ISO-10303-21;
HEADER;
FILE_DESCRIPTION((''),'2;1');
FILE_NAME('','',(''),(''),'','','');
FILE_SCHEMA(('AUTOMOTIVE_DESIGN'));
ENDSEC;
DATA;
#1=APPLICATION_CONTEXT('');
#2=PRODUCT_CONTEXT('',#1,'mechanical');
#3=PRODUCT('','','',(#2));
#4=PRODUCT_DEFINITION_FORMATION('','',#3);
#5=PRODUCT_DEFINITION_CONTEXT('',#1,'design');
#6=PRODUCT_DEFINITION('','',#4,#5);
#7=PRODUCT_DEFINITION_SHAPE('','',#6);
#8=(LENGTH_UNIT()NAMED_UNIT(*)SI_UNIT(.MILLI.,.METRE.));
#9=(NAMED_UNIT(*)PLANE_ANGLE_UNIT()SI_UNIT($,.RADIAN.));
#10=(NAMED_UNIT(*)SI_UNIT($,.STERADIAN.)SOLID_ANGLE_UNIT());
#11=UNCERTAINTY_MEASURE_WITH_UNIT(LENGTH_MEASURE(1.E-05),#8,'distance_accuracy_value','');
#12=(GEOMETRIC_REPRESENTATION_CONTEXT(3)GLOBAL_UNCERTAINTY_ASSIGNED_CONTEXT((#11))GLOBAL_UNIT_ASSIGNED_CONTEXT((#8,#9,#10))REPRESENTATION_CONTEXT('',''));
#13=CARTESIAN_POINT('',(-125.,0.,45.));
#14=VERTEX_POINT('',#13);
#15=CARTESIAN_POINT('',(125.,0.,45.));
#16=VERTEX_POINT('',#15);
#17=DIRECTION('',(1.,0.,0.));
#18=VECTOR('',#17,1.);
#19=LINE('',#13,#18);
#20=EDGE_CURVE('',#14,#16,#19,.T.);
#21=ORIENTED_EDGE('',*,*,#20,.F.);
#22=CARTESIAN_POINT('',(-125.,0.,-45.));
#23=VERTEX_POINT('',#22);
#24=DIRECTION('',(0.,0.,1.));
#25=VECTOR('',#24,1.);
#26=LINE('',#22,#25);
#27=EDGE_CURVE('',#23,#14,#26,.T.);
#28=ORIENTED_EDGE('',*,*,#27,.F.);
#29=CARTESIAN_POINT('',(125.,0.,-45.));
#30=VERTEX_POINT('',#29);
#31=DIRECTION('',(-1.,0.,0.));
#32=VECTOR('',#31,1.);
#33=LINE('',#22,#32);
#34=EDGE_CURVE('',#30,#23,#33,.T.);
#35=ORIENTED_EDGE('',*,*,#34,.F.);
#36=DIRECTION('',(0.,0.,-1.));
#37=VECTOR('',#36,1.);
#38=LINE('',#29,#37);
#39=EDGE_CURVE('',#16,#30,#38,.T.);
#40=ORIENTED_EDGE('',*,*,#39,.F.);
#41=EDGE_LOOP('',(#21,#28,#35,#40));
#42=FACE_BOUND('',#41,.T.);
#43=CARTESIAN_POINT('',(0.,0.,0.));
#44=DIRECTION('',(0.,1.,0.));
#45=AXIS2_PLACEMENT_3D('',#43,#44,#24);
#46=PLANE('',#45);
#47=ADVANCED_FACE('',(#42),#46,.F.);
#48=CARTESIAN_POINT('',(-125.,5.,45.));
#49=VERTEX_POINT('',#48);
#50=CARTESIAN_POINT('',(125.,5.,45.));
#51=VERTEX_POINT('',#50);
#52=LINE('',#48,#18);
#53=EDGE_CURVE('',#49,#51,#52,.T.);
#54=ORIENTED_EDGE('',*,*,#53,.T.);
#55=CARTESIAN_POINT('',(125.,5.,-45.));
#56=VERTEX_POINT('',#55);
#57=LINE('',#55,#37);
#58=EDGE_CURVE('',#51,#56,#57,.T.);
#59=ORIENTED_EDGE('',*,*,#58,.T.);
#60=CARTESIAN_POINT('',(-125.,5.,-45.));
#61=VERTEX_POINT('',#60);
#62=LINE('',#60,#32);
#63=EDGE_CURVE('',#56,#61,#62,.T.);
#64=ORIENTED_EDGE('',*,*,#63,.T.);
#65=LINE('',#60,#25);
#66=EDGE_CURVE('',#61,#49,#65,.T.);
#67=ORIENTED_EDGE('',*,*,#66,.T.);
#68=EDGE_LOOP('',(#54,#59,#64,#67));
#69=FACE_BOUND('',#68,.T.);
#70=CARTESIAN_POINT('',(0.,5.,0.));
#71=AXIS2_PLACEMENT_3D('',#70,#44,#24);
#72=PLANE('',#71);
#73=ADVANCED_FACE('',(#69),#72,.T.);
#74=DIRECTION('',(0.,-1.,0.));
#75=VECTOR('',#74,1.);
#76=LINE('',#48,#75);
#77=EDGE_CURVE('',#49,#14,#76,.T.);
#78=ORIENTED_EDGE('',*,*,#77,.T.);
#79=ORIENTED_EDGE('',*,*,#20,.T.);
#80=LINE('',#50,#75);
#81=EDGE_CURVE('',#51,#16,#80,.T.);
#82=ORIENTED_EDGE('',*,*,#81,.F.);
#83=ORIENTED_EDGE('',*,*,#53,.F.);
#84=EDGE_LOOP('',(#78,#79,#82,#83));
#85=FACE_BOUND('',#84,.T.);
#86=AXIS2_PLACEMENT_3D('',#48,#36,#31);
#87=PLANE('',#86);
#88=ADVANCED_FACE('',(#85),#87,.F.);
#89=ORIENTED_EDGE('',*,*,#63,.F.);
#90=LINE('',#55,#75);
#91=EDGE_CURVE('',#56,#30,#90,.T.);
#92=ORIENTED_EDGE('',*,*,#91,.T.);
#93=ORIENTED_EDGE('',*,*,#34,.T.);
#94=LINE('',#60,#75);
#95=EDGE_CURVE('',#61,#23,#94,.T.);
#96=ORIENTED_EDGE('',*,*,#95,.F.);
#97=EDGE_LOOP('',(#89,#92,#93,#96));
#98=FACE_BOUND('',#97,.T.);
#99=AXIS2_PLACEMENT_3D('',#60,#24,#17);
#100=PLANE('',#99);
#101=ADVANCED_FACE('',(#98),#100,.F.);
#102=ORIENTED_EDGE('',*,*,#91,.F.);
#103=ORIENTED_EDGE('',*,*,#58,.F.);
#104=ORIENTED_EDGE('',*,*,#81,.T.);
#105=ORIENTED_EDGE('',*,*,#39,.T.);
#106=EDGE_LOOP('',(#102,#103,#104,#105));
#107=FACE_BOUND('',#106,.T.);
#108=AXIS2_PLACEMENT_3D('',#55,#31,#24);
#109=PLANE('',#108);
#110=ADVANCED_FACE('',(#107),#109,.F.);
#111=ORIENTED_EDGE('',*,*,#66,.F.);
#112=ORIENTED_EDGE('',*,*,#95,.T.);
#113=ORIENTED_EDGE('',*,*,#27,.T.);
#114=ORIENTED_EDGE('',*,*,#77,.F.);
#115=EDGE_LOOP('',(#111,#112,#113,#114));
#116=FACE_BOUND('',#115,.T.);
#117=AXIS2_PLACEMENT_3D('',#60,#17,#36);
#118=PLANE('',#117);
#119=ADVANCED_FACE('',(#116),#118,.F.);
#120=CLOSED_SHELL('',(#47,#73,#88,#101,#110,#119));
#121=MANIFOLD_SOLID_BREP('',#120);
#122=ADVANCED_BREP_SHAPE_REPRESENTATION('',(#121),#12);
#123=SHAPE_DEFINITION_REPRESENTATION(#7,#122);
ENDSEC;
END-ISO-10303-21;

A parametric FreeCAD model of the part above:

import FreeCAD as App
import Part
import Sketcher

doc = App.newDocument("Part")
body = doc.addObject("PartDesign::Body", "Body")

# Sketch on XZ plane
sketch1 = body.newObject("Sketcher::SketchObject", "Sketch")
sketch1.AttachmentSupport = (doc.getObject("XZ_Plane"), [""])
sketch1.MapMode = "FlatFace"
sketch1.addGeometry([
    Part.LineSegment(App.Vector(-125, -45, 0), App.Vector(-125, 45, 0)),
    Part.LineSegment(App.Vector(-125, 45, 0), App.Vector(125, 45, 0)),
    Part.LineSegment(App.Vector(125, 45, 0), App.Vector(125, -45, 0)),
    Part.LineSegment(App.Vector(125, -45, 0), App.Vector(-125, -45, 0)),
], False)
sketch1.addConstraint([
    Sketcher.Constraint("Coincident", 0, 2, 1, 1),
    Sketcher.Constraint("Coincident", 1, 2, 2, 1),
    Sketcher.Constraint("Coincident", 2, 2, 3, 1),
    Sketcher.Constraint("Coincident", 3, 2, 0, 1),
    Sketcher.Constraint("Vertical", 0),
    Sketcher.Constraint("Horizontal", 1),
    Sketcher.Constraint("Vertical", 2),
    Sketcher.Constraint("Horizontal", 3),
    Sketcher.Constraint("Symmetric", 0, 2, 2, 2, -1, 1),
    Sketcher.Constraint("DistanceX", 1, 1, 1, 2, 250.0),
    Sketcher.Constraint("DistanceY", 0, 1, 0, 2, 90.0),
])
pad1 = body.newObject("PartDesign::Pad", "Pad")
pad1.Profile = sketch1
pad1.Length = 5
pad1.Reversed = True

doc.recompute()
